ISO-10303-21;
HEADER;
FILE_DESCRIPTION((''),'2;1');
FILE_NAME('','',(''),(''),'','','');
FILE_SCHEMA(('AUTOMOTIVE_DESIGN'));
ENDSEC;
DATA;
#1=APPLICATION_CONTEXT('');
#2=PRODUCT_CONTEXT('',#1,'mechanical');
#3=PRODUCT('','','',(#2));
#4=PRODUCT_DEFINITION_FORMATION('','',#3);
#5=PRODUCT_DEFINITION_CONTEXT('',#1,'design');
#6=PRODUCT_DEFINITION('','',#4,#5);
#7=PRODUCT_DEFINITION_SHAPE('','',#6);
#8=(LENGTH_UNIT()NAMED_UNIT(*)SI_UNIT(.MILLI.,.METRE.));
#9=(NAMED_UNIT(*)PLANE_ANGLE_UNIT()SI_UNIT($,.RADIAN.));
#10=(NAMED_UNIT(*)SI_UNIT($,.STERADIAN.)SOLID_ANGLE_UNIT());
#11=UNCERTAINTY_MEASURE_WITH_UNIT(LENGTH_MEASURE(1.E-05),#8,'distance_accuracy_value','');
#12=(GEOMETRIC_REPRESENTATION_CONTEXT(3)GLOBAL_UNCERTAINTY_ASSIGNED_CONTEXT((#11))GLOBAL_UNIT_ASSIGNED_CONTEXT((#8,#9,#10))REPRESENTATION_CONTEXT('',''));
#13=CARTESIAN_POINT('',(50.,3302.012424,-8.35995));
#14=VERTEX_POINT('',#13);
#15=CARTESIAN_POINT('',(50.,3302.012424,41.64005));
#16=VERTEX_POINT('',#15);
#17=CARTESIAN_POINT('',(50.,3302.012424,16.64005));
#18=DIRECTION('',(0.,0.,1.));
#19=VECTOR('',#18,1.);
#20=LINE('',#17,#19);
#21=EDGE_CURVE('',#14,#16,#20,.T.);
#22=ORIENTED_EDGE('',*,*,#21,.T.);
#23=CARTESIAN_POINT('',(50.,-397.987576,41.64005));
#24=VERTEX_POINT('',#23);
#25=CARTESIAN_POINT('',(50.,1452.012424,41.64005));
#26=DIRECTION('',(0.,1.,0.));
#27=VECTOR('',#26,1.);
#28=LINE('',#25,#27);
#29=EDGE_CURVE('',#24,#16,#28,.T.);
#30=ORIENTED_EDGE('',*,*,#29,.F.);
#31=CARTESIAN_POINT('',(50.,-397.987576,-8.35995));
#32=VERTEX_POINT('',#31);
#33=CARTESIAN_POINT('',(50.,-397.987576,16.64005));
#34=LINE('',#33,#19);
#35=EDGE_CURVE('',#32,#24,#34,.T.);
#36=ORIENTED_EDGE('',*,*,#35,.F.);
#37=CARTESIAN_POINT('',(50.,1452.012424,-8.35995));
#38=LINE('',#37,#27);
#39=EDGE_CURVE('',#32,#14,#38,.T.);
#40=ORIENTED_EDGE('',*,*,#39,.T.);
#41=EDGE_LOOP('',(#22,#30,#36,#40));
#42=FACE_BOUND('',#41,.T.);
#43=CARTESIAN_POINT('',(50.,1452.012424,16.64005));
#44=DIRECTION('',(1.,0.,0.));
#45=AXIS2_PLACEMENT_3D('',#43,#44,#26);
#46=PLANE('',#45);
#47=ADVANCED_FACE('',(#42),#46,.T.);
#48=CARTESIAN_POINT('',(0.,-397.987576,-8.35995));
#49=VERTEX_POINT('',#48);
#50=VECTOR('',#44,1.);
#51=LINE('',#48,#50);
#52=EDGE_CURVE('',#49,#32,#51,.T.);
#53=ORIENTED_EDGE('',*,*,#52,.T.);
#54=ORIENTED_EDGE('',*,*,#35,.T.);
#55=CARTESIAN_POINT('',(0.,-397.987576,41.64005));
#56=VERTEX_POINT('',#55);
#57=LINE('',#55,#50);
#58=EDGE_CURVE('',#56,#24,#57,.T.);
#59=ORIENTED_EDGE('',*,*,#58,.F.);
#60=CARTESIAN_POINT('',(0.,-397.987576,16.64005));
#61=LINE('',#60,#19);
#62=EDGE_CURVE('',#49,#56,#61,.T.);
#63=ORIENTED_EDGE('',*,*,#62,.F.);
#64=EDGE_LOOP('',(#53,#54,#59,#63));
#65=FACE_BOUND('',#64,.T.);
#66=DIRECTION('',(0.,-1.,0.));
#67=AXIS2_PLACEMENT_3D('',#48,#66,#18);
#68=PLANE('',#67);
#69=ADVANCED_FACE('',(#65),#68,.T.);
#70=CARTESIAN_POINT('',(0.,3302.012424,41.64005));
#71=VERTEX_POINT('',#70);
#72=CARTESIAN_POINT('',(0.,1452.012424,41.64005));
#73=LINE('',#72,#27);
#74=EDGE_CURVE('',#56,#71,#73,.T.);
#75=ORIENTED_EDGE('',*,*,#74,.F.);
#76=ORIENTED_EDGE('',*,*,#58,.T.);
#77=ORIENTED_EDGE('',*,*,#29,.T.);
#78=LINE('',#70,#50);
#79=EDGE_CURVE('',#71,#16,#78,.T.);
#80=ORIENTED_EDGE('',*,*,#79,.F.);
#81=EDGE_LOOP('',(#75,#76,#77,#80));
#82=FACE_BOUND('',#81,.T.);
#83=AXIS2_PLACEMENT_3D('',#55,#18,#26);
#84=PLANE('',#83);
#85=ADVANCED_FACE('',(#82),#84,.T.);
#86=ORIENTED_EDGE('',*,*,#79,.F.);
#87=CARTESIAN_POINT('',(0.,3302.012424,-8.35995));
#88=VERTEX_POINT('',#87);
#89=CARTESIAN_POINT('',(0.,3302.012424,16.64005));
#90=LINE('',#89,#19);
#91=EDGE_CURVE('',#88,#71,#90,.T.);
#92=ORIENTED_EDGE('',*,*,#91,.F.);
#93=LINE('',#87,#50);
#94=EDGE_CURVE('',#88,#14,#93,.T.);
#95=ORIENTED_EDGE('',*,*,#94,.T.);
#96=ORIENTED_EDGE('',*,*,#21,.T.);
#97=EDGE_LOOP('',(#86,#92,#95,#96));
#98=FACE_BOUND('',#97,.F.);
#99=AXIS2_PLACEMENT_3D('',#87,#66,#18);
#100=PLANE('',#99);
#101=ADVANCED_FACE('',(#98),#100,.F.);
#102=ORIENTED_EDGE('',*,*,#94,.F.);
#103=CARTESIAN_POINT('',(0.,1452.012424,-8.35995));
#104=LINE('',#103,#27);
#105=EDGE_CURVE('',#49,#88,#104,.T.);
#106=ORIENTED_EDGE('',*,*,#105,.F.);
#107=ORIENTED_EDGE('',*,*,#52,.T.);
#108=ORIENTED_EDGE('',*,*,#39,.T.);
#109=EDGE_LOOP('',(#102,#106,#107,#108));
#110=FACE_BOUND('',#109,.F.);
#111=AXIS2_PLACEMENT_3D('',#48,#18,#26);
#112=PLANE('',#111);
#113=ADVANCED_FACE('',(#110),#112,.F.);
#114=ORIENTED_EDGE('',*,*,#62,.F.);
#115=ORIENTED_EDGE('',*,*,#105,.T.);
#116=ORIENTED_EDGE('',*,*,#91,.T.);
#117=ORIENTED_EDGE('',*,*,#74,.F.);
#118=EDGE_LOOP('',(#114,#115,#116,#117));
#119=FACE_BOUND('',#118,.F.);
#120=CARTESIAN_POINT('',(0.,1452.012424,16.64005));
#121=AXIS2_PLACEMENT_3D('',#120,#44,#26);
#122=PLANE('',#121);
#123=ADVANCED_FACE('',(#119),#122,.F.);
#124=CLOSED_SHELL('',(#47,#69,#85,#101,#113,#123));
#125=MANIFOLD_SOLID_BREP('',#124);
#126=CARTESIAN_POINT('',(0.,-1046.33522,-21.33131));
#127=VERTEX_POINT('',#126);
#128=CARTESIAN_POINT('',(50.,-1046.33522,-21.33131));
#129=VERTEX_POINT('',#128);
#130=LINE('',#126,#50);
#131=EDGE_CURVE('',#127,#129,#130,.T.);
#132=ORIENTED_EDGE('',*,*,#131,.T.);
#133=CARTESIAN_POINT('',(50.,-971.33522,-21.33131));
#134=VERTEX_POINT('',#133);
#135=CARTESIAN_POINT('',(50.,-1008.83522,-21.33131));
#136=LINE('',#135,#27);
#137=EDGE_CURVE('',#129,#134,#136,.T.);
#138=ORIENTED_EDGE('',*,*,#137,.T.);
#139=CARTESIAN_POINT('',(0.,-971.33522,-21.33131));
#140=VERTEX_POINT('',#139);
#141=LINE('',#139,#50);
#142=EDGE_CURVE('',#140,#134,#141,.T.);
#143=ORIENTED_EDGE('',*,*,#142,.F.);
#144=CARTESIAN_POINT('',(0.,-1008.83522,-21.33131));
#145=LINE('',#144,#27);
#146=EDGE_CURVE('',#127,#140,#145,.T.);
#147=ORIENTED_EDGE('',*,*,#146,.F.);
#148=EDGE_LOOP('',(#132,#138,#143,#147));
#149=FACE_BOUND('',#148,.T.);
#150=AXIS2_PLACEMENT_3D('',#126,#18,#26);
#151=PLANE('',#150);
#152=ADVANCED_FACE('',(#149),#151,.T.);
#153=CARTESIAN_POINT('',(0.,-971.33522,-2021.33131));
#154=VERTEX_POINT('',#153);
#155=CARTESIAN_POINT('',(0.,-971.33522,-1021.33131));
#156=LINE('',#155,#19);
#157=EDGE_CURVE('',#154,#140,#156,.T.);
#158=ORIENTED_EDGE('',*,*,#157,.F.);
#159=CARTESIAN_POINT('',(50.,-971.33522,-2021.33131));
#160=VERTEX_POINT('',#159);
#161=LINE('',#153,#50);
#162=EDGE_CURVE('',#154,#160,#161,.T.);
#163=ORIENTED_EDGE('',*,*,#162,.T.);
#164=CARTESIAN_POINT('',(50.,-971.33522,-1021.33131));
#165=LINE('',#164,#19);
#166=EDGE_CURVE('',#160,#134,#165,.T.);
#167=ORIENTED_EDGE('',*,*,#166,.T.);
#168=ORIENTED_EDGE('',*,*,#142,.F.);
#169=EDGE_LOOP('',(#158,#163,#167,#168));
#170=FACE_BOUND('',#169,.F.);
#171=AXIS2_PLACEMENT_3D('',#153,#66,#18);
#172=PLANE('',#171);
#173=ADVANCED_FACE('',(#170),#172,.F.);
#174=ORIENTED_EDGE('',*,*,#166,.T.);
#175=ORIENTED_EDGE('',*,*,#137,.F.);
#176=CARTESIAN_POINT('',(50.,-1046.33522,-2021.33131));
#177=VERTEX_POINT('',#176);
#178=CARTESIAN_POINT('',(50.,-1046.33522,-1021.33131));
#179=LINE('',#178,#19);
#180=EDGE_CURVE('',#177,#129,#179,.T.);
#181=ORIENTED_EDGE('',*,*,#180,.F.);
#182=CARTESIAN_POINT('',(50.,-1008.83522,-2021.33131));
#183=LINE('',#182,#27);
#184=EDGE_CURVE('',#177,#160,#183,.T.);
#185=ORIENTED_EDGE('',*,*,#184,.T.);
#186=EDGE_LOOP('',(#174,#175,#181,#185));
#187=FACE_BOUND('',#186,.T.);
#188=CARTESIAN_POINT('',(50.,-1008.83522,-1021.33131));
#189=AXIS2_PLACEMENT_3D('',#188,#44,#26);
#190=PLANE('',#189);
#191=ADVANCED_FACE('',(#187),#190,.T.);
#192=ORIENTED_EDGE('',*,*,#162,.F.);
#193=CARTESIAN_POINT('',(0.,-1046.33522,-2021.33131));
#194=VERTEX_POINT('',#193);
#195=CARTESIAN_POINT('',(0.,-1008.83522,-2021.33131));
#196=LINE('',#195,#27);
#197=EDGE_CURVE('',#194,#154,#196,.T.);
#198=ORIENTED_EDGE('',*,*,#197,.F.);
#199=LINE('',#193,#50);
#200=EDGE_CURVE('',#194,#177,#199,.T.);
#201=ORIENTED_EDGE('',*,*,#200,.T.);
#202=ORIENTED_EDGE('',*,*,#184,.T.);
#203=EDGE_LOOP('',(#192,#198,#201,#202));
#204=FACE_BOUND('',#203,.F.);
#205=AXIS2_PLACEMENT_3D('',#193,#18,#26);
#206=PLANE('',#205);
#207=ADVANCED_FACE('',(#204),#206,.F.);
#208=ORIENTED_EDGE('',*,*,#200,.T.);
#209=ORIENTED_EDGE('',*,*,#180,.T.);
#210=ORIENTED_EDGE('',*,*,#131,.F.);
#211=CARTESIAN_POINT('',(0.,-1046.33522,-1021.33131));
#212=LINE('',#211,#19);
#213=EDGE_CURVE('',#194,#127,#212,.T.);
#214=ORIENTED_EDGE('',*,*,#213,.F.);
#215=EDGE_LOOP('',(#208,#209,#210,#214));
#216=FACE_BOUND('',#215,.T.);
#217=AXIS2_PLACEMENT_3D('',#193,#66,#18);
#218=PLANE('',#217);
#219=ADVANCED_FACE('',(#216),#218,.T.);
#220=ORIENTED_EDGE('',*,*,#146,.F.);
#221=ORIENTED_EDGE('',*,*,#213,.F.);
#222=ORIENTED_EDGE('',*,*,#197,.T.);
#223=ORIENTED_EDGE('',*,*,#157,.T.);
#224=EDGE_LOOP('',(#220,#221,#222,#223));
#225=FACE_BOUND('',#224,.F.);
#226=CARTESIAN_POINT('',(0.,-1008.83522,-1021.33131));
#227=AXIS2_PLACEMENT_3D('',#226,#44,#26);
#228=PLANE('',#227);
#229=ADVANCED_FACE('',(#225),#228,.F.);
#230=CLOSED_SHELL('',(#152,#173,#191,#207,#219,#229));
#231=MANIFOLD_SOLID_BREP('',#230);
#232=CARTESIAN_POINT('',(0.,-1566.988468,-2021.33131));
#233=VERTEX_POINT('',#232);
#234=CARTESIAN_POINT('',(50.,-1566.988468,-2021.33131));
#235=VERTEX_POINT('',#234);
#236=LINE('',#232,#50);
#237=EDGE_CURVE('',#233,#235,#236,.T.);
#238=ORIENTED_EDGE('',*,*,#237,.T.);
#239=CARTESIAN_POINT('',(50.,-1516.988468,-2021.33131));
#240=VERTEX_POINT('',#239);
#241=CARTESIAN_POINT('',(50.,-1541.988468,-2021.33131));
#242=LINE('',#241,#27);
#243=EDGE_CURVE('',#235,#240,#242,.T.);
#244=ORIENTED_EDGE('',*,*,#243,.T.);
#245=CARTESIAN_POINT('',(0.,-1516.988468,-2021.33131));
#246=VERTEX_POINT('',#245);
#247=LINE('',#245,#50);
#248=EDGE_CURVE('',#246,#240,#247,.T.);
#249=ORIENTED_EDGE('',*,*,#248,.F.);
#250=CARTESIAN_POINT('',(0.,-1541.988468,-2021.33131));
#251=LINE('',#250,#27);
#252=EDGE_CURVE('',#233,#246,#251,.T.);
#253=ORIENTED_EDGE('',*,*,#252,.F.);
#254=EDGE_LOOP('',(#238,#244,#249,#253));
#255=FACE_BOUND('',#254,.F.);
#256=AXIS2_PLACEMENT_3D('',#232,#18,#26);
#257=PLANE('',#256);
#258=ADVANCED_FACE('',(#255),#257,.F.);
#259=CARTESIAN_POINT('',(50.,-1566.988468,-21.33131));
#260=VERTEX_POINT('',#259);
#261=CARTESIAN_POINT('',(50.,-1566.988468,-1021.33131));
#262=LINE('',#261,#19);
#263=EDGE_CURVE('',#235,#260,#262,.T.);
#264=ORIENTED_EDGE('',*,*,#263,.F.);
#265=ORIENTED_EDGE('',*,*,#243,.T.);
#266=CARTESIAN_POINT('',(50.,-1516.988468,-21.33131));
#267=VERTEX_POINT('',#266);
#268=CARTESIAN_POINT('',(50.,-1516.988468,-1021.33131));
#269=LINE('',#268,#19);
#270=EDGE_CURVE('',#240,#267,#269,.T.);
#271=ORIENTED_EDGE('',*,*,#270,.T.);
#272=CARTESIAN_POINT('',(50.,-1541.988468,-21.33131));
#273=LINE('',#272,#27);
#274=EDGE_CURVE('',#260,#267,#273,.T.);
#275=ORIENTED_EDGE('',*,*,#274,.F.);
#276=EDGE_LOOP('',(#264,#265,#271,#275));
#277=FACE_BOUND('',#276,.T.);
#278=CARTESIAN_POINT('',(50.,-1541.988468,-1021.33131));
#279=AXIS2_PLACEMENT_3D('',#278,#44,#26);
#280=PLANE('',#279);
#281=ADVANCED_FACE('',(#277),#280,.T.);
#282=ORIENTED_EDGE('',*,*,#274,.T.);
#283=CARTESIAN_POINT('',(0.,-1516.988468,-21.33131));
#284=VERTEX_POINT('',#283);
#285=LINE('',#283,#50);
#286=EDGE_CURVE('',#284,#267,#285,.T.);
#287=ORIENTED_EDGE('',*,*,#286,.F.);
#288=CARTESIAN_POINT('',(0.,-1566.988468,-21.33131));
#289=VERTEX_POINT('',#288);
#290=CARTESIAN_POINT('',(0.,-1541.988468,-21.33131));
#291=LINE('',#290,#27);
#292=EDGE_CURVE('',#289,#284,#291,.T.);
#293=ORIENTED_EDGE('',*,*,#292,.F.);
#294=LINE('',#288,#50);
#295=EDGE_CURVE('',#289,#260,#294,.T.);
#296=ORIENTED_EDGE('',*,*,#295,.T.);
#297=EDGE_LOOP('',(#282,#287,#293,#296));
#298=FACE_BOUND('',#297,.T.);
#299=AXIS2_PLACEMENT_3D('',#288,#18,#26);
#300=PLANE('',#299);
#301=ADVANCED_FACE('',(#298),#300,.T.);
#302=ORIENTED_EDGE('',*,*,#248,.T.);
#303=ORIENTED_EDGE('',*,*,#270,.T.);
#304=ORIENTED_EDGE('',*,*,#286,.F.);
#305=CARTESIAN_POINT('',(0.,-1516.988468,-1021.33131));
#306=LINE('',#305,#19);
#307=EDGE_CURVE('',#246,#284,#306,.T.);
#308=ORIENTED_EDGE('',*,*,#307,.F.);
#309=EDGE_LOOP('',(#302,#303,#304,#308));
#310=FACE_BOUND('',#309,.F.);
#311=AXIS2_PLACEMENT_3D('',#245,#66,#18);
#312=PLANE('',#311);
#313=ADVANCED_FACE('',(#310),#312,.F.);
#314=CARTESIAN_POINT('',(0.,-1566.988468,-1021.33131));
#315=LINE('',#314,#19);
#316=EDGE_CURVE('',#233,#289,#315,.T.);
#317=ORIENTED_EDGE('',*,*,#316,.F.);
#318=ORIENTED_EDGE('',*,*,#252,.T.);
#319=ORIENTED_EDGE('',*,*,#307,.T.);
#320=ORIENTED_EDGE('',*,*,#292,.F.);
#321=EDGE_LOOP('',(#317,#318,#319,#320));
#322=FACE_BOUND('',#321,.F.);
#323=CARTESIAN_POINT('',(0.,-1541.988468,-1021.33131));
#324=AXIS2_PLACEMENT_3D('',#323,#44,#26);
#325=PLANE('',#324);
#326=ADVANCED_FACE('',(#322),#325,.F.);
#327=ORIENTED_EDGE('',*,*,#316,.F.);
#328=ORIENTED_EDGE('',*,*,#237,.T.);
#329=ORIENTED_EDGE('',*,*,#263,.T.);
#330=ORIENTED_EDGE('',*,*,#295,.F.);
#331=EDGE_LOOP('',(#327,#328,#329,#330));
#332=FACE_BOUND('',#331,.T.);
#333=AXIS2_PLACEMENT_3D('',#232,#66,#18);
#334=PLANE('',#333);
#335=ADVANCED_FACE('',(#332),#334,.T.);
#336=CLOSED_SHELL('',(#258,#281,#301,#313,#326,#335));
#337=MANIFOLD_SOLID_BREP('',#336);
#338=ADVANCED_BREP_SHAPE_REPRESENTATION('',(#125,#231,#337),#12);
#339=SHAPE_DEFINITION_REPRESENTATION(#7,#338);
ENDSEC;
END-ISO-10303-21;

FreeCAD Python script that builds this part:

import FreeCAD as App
import Part
import Sketcher

doc = App.newDocument("Part")
body = doc.addObject("PartDesign::Body", "Body")
body.AllowCompound = True

sketch1 = body.newObject("Sketcher::SketchObject", "Sketch")
sketch1.AttachmentSupport = (doc.getObject("YZ_Plane"), [""])
sketch1.MapMode = "FlatFace"
sketch1.addGeometry(Part.LineSegment(App.Vector(-398, 42, 0), App.Vector(-398, -8, 0)), False)
sketch1.addGeometry(Part.LineSegment(App.Vector(-398, -8, 0), App.Vector(3302, -8, 0)), False)
sketch1.addGeometry(Part.LineSegment(App.Vector(3302, -8, 0), App.Vector(3302, 42, 0)), False)
sketch1.addGeometry(Part.LineSegment(App.Vector(3302, 42, 0), App.Vector(-398, 42, 0)), False)
sketch1.addGeometry(Part.LineSegment(App.Vector(-1046, -21, 0), App.Vector(-1046, -2021, 0)), False)
sketch1.addGeometry(Part.LineSegment(App.Vector(-1046, -2021, 0), App.Vector(-971, -2021, 0)), False)
sketch1.addGeometry(Part.LineSegment(App.Vector(-971, -2021, 0), App.Vector(-971, -21, 0)), False)
sketch1.addGeometry(Part.LineSegment(App.Vector(-971, -21, 0), App.Vector(-1046, -21, 0)), False)
sketch1.addGeometry(Part.LineSegment(App.Vector(-1567, -21, 0), App.Vector(-1567, -2021, 0)), False)
sketch1.addGeometry(Part.LineSegment(App.Vector(-1567, -2021, 0), App.Vector(-1517, -2021, 0)), False)
sketch1.addGeometry(Part.LineSegment(App.Vector(-1517, -2021, 0), App.Vector(-1517, -21, 0)), False)
sketch1.addGeometry(Part.LineSegment(App.Vector(-1517, -21, 0), App.Vector(-1567, -21, 0)), False)
sketch1.addConstraint(Sketcher.Constraint("Coincident", 0, 2, 1, 1))
sketch1.addConstraint(Sketcher.Constraint("Coincident", 1, 2, 2, 1))
sketch1.addConstraint(Sketcher.Constraint("Coincident", 2, 2, 3, 1))
sketch1.addConstraint(Sketcher.Constraint("Coincident", 3, 2, 0, 1))
sketch1.addConstraint(Sketcher.Constraint("Coincident", 4, 2, 5, 1))
sketch1.addConstraint(Sketcher.Constraint("Coincident", 5, 2, 6, 1))
sketch1.addConstraint(Sketcher.Constraint("Coincident", 6, 2, 7, 1))
sketch1.addConstraint(Sketcher.Constraint("Coincident", 7, 2, 4, 1))
sketch1.addConstraint(Sketcher.Constraint("Coincident", 8, 2, 9, 1))
sketch1.addConstraint(Sketcher.Constraint("Coincident", 9, 2, 10, 1))
sketch1.addConstraint(Sketcher.Constraint("Coincident", 10, 2, 11, 1))
sketch1.addConstraint(Sketcher.Constraint("Coincident", 11, 2, 8, 1))
sketch1.addConstraint(Sketcher.Constraint("Vertical", 0))
sketch1.addConstraint(Sketcher.Constraint("Horizontal", 1))
sketch1.addConstraint(Sketcher.Constraint("Vertical", 2))
sketch1.addConstraint(Sketcher.Constraint("Horizontal", 3))
sketch1.addConstraint(Sketcher.Constraint("Vertical", 4))
sketch1.addConstraint(Sketcher.Constraint("Horizontal", 5))
sketch1.addConstraint(Sketcher.Constraint("Vertical", 6))
sketch1.addConstraint(Sketcher.Constraint("Horizontal", 7))
sketch1.addConstraint(Sketcher.Constraint("Vertical", 8))
sketch1.addConstraint(Sketcher.Constraint("Horizontal", 9))
sketch1.addConstraint(Sketcher.Constraint("Vertical", 10))
sketch1.addConstraint(Sketcher.Constraint("Horizontal", 11))
sketch1.addConstraint(Sketcher.Constraint("Horizontal", 5, 2, 8, 2))
sketch1.addConstraint(Sketcher.Constraint("Horizontal", 7, 2, 10, 2))
sketch1.addConstraint(Sketcher.Constraint("Equal", 11, 0))
sketch1.addConstraint(Sketcher.Constraint("DistanceX", 1, 1, 1, 2, 3700.0))
sketch1.addConstraint(Sketcher.Constraint("DistanceX", 5, 1, 5, 2, 75.0))
sketch1.addConstraint(Sketcher.Constraint("DistanceX", 9, 1, 9, 2, 50.0))
sketch1.addConstraint(Sketcher.Constraint("DistanceY", 4, 2, 4, 1, 2000.0))
sketch1.addConstraint(Sketcher.Constraint("DistanceY", 0, 2, -1, 1, 8.35995))
sketch1.addConstraint(Sketcher.Constraint("DistanceX", 4, 2, -1, 1, 1046.33522))
sketch1.addConstraint(Sketcher.Constraint("DistanceY", 4, 2, -1, 1, 2021.33131))
sketch1.addConstraint(Sketcher.Constraint("DistanceX", 8, 2, -1, 1, 1566.988468))
sketch1.addConstraint(Sketcher.Constraint("DistanceX", 8, 2, 0, 2, 1169.000892))
pad1 = body.newObject("PartDesign::Pad", "Pad")
pad1.Profile = sketch1
pad1.Length = 50

doc.recompute()
